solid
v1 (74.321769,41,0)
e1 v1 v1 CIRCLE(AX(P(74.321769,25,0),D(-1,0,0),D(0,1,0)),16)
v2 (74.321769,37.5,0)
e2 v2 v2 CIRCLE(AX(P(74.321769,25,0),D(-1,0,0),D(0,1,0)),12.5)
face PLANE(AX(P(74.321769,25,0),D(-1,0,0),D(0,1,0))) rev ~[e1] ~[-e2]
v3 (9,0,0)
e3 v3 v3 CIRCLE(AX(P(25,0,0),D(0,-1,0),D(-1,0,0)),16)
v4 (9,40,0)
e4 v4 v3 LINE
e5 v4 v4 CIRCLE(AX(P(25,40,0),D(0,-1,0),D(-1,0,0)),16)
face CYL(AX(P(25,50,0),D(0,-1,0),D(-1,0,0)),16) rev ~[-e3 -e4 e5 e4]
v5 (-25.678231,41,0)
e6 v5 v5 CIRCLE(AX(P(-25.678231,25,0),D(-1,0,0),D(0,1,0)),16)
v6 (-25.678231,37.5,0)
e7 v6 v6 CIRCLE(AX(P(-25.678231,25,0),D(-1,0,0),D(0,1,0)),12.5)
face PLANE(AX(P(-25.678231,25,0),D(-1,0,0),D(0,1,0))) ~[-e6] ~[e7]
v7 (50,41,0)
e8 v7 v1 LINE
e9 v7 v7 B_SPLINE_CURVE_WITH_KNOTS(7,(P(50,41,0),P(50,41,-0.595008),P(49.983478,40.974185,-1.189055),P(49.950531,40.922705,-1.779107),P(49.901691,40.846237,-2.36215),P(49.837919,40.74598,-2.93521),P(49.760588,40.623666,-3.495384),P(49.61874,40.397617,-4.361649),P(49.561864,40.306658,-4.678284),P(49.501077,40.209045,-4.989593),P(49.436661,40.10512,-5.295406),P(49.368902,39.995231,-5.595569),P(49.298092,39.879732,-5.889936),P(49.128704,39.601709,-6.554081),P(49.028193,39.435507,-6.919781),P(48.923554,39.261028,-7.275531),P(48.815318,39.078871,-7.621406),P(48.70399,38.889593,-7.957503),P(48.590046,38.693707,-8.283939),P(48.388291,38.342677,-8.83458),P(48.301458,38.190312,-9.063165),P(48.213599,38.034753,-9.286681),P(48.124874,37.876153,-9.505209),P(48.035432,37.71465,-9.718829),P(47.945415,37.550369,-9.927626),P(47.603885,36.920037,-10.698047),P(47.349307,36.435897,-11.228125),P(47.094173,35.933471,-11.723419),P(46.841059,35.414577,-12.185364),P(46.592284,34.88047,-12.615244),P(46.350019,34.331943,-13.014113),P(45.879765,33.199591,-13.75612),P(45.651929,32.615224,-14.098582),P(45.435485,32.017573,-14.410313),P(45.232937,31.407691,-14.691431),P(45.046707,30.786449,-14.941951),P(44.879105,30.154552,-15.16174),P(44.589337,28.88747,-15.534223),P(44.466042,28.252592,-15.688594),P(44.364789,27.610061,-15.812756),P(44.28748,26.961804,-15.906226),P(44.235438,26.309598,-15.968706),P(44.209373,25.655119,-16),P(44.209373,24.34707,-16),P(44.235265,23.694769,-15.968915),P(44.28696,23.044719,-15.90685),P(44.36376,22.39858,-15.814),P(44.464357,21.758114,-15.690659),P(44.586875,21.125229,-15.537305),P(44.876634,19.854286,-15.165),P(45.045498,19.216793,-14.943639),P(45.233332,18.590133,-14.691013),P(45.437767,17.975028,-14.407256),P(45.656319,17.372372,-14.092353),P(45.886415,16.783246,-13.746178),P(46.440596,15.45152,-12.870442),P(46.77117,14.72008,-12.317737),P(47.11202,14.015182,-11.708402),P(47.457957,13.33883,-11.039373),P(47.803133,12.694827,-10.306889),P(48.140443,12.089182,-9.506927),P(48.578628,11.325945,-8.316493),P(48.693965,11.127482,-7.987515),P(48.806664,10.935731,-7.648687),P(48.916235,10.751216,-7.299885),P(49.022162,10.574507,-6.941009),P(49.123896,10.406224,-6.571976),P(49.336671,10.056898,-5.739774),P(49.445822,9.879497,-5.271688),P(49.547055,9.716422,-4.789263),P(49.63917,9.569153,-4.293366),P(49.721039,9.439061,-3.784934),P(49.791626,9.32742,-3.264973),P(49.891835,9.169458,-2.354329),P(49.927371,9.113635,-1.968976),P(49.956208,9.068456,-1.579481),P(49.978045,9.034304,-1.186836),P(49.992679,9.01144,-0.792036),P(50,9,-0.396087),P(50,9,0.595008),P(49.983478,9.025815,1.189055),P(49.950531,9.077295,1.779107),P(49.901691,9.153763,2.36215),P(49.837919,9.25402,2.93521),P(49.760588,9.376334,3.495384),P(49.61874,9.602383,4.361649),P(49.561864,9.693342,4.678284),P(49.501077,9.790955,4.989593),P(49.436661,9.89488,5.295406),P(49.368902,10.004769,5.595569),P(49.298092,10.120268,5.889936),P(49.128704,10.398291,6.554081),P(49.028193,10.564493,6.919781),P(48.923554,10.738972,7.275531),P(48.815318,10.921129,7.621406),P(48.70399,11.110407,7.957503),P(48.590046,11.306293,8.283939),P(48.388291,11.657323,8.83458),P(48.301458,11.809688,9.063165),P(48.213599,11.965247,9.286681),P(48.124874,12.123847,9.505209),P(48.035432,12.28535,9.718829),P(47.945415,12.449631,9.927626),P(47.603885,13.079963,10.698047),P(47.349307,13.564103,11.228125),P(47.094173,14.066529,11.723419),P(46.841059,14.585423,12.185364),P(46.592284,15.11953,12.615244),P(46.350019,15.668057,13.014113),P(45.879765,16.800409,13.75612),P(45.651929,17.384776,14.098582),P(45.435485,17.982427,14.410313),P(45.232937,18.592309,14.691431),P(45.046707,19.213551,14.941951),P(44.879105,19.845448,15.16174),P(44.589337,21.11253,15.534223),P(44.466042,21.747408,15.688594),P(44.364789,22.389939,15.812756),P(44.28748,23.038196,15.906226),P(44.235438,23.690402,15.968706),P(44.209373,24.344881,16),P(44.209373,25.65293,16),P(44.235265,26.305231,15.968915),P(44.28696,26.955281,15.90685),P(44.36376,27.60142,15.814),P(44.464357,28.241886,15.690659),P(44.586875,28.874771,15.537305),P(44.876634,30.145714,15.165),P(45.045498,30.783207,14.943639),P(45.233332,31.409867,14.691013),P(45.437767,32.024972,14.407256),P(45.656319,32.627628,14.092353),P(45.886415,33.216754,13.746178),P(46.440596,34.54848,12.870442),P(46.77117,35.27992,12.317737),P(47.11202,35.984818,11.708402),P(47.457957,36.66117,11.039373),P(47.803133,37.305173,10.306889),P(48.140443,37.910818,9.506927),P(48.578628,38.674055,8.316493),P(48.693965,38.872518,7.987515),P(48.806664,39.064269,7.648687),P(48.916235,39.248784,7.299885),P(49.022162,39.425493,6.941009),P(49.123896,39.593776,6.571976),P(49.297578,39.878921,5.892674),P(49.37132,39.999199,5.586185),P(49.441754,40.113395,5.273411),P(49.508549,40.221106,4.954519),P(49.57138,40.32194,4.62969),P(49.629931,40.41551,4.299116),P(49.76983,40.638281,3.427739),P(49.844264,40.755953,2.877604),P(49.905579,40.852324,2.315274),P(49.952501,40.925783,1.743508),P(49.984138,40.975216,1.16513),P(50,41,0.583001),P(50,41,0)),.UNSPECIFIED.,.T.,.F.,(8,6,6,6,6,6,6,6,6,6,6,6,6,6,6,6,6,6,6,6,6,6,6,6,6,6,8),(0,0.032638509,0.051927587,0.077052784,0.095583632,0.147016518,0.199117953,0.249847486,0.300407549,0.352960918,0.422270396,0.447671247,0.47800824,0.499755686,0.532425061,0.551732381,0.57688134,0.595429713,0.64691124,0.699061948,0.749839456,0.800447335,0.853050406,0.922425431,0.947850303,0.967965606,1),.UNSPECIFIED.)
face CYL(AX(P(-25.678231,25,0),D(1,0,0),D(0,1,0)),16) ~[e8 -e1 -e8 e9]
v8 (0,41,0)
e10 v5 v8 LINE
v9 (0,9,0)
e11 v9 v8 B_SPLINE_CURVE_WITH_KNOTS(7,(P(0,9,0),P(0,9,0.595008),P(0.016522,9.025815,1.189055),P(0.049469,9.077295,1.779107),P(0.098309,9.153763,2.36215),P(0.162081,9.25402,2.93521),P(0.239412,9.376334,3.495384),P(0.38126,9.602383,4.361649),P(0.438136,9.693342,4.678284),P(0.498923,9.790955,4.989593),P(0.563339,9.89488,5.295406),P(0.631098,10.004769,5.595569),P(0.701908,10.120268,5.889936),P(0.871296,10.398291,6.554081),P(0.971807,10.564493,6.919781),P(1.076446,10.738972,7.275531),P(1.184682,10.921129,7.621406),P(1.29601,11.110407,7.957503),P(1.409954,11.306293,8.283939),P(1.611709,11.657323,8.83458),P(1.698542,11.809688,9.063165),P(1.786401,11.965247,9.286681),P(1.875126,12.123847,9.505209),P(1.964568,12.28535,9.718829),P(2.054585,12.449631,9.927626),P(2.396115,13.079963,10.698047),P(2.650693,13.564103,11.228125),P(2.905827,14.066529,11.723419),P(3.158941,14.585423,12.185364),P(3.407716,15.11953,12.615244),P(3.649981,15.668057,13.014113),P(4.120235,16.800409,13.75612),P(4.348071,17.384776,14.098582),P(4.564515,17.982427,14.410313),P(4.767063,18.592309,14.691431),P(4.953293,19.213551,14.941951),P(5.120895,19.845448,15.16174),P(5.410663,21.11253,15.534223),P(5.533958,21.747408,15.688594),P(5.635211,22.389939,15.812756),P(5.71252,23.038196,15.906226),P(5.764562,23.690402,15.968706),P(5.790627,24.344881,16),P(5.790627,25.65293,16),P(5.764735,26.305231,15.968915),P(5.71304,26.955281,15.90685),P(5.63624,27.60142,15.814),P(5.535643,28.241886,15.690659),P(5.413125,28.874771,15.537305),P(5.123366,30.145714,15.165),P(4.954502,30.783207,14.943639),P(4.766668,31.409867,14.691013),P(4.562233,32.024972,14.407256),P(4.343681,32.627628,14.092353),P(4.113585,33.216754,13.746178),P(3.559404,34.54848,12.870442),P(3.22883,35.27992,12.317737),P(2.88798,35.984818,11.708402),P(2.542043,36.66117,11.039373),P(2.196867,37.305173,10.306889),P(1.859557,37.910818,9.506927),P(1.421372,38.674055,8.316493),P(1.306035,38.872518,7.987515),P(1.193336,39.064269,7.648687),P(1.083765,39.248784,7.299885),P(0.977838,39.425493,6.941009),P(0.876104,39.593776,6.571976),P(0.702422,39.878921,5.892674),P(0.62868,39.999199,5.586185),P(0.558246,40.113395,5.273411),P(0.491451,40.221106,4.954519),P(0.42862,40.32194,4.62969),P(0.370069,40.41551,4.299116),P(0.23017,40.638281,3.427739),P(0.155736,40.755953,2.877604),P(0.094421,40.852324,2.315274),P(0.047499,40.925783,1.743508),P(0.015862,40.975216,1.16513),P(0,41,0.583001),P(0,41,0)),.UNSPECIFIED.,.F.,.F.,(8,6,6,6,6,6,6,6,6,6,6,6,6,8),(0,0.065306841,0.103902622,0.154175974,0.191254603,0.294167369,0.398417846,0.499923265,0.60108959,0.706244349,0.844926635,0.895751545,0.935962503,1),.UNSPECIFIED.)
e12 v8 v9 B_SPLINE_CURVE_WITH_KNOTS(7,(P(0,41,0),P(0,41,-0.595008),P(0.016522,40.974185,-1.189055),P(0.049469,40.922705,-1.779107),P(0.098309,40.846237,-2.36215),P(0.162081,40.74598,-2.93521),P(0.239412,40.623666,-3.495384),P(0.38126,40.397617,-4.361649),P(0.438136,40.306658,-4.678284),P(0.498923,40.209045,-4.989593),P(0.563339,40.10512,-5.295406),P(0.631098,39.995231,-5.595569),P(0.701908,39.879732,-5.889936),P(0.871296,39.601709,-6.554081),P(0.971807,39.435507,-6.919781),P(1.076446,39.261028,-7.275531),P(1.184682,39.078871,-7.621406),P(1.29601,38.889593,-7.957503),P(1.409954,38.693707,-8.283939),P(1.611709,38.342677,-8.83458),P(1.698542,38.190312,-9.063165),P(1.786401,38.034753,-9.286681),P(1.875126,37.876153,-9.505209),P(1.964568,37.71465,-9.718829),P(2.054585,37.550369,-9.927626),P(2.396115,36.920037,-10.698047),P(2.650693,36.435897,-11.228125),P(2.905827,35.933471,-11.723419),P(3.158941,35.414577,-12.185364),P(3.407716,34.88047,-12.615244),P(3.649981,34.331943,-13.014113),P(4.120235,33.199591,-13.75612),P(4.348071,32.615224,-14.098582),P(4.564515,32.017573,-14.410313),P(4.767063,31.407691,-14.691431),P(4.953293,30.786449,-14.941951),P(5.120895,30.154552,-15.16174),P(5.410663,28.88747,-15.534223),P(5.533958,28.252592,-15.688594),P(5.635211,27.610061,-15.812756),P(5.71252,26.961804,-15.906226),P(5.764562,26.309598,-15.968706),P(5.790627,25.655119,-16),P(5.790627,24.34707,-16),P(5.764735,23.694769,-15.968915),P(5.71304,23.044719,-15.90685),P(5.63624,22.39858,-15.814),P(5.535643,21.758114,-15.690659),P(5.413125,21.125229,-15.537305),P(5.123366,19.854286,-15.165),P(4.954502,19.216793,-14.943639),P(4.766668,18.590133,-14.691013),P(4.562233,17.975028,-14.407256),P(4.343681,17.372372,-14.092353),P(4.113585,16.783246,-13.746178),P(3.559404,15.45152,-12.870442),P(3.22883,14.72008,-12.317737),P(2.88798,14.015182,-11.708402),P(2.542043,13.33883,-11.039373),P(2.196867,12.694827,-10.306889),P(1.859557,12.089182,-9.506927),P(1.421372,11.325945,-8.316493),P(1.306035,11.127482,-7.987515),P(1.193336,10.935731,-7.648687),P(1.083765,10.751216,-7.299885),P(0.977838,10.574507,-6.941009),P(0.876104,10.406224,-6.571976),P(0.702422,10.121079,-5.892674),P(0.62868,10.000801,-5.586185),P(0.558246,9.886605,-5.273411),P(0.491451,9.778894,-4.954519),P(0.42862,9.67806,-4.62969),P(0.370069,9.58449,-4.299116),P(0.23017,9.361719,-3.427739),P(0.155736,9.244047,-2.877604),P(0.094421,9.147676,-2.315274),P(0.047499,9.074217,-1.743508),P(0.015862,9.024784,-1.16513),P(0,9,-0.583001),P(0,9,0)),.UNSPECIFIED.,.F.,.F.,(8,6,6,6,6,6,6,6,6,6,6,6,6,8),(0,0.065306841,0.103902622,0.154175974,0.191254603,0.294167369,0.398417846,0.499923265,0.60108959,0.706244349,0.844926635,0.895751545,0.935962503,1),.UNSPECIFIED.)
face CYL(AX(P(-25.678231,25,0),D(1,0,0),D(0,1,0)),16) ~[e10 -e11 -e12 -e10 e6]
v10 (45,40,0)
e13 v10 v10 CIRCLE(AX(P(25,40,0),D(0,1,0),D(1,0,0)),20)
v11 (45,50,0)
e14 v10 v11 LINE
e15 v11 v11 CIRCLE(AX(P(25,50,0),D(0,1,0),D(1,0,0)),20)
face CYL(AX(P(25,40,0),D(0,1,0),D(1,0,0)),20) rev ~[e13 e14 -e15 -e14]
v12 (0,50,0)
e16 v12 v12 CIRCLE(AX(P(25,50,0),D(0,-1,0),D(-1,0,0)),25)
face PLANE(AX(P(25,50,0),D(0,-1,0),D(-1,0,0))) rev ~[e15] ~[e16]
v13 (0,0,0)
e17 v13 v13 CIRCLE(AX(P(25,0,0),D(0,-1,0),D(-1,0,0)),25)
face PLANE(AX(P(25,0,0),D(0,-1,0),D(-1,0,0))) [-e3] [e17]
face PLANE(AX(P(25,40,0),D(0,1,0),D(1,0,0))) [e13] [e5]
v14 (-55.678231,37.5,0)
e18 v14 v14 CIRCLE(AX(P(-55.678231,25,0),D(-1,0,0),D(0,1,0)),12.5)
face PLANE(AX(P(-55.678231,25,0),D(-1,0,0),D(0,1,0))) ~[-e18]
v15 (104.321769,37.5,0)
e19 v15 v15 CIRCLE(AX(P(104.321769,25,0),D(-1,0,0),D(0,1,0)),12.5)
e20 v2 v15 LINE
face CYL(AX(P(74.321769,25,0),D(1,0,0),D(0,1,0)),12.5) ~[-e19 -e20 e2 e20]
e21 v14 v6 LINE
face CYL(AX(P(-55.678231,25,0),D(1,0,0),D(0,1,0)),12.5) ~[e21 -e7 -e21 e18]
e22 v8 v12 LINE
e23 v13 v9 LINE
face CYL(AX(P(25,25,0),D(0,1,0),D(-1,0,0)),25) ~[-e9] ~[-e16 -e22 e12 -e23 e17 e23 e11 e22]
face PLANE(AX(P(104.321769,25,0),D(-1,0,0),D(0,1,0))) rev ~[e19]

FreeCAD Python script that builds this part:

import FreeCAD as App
import Part
import Sketcher
Q = App.Units.Quantity

doc = App.newDocument("Part")
body = doc.addObject("PartDesign::Body", "Body")

sketch1 = body.newObject("Sketcher::SketchObject", "Sketch")
sketch1.AttachmentSupport = (doc.getObject("XY_Plane"), [""])
sketch1.MapMode = "FlatFace"
sketch1.addGeometry([
    Part.LineSegment(App.Vector(0, 50, 0), App.Vector(0, 0, 0)),
    Part.LineSegment(App.Vector(0, 0, 0), App.Vector(25, 0, 0)),
    Part.LineSegment(App.Vector(25, 0, 0), App.Vector(25, 50, 0)),
    Part.LineSegment(App.Vector(25, 50, 0), App.Vector(0, 50, 0)),
], False)
sketch1.addGeometry(Part.LineSegment(App.Vector(25, 50, 0), App.Vector(25, 0, 0)), True)
sketch1.addConstraint([
    Sketcher.Constraint("Coincident", 0, 2, 1, 1),
    Sketcher.Constraint("Coincident", 1, 2, 2, 1),
    Sketcher.Constraint("Coincident", 2, 2, 3, 1),
    Sketcher.Constraint("Coincident", 3, 2, 0, 1),
    Sketcher.Constraint("Vertical", 0),
    Sketcher.Constraint("Horizontal", 1),
    Sketcher.Constraint("Vertical", 2),
    Sketcher.Constraint("Horizontal", 3),
    Sketcher.Constraint("Vertical", 4),
    Sketcher.Constraint("Coincident", 0, 2, -1, 1),
    Sketcher.Constraint("Coincident", 4, 1, 2, 2),
    Sketcher.Constraint("PointOnObject", 4, 2, -1),
    Sketcher.Constraint("DistanceX", 1, 1, 1, 2, Q("25 mm")),
    Sketcher.Constraint("DistanceY", 0, 2, 0, 1, Q("50 mm")),
])
revolution = body.newObject("PartDesign::Revolution", "Revolution")
revolution.Profile = sketch1
revolution.ReferenceAxis = (sketch1, ["Axis0"])
revolution.Angle = 360

sketch2 = body.newObject("Sketcher::SketchObject", "Sketch001")
sketch2.AttachmentSupport = (doc.getObject("XY_Plane"), [""])
sketch2.MapMode = "FlatFace"
sketch2.addGeometry([
    Part.LineSegment(App.Vector(-55.7, 37.5, 0), App.Vector(-55.7, 25, 0)),
    Part.LineSegment(App.Vector(-55.7, 25, 0), App.Vector(104.3, 25, 0)),
    Part.LineSegment(App.Vector(104.3, 25, 0), App.Vector(104.3, 37.5, 0)),
    Part.LineSegment(App.Vector(104.3, 37.5, 0), App.Vector(74.3, 37.5, 0)),
    Part.LineSegment(App.Vector(74.3, 37.5, 0), App.Vector(74.3, 41, 0)),
    Part.LineSegment(App.Vector(74.3, 41, 0), App.Vector(-25.7, 41, 0)),
    Part.LineSegment(App.Vector(-25.7, 41, 0), App.Vector(-25.7, 37.5, 0)),
    Part.LineSegment(App.Vector(-25.7, 37.5, 0), App.Vector(-55.7, 37.5, 0)),
], False)
sketch2.addGeometry(Part.LineSegment(App.Vector(104.3, 25, 0), App.Vector(-55.7, 25, 0)), True)
sketch2.addConstraint([
    Sketcher.Constraint("Coincident", 0, 2, 1, 1),
    Sketcher.Constraint("Coincident", 1, 2, 2, 1),
    Sketcher.Constraint("Coincident", 2, 2, 3, 1),
    Sketcher.Constraint("Coincident", 3, 2, 4, 1),
    Sketcher.Constraint("Coincident", 4, 2, 5, 1),
    Sketcher.Constraint("Coincident", 5, 2, 6, 1),
    Sketcher.Constraint("Coincident", 6, 2, 7, 1),
    Sketcher.Constraint("Coincident", 7, 2, 0, 1),
    Sketcher.Constraint("Vertical", 0),
    Sketcher.Constraint("Horizontal", 1),
    Sketcher.Constraint("Vertical", 2),
    Sketcher.Constraint("Horizontal", 3),
    Sketcher.Constraint("Vertical", 4),
    Sketcher.Constraint("Horizontal", 5),
    Sketcher.Constraint("Vertical", 6),
    Sketcher.Constraint("Horizontal", 7),
    Sketcher.Constraint("Horizontal", 8),
    Sketcher.Constraint("Coincident", 8, 1, 1, 2),
    Sketcher.Constraint("Horizontal", 3, 2, 6, 2),
    Sketcher.Constraint("Vertical", 7, 2, 8, 2),
    Sketcher.Constraint("Equal", 3, 7),
    Sketcher.Constraint("DistanceX", 1, 1, 1, 2, Q("160 mm")),
    Sketcher.Constraint("DistanceX", 3, 2, 3, 1, Q("30 mm")),
    Sketcher.Constraint("DistanceY", 0, 2, 0, 1, Q("12.5 mm")),
    Sketcher.Constraint("DistanceY", 4, 1, 4, 2, Q("3.5 mm")),
    Sketcher.Constraint("DistanceY", -1, 1, 0, 2, Q("25 mm")),
    Sketcher.Constraint("DistanceX", 0, 2, -1, 1, Q("55.678231 mm")),
])
revolution2 = body.newObject("PartDesign::Revolution", "Revolution001")
revolution2.Profile = sketch2
revolution2.ReferenceAxis = (sketch2, ["Axis0"])
revolution2.Angle = 360

sketch3 = body.newObject("Sketcher::SketchObject", "Sketch002")
sketch3.AttachmentSupport = (doc.getObject("XZ_Plane"), [""])
sketch3.MapMode = "FlatFace"
sketch3.AttachmentOffset = App.Placement(App.Vector(0, 0, -50), App.Rotation())
sketch3.addGeometry(Part.Circle(App.Vector(25, 0, 0), App.Vector(0, 0, 1), 16), False)
sketch3.addConstraint([
    Sketcher.Constraint("PointOnObject", 0, 3, -1),
    Sketcher.Constraint("Diameter", 0, Q("32 mm")),
    Sketcher.Constraint("DistanceX", -1, 1, 0, 3, Q("25 mm")),
])
doc.recompute()
hole = body.newObject("PartDesign::Hole", "Hole")
hole.Profile = sketch3
hole.ThreadType = "None"
hole.Diameter = 32
hole.DepthType = "ThroughAll"
hole.HoleCutType = "Counterbore"
hole.HoleCutDiameter = 40
hole.HoleCutDepth = 10
hole.Reversed = True

doc.recompute()
